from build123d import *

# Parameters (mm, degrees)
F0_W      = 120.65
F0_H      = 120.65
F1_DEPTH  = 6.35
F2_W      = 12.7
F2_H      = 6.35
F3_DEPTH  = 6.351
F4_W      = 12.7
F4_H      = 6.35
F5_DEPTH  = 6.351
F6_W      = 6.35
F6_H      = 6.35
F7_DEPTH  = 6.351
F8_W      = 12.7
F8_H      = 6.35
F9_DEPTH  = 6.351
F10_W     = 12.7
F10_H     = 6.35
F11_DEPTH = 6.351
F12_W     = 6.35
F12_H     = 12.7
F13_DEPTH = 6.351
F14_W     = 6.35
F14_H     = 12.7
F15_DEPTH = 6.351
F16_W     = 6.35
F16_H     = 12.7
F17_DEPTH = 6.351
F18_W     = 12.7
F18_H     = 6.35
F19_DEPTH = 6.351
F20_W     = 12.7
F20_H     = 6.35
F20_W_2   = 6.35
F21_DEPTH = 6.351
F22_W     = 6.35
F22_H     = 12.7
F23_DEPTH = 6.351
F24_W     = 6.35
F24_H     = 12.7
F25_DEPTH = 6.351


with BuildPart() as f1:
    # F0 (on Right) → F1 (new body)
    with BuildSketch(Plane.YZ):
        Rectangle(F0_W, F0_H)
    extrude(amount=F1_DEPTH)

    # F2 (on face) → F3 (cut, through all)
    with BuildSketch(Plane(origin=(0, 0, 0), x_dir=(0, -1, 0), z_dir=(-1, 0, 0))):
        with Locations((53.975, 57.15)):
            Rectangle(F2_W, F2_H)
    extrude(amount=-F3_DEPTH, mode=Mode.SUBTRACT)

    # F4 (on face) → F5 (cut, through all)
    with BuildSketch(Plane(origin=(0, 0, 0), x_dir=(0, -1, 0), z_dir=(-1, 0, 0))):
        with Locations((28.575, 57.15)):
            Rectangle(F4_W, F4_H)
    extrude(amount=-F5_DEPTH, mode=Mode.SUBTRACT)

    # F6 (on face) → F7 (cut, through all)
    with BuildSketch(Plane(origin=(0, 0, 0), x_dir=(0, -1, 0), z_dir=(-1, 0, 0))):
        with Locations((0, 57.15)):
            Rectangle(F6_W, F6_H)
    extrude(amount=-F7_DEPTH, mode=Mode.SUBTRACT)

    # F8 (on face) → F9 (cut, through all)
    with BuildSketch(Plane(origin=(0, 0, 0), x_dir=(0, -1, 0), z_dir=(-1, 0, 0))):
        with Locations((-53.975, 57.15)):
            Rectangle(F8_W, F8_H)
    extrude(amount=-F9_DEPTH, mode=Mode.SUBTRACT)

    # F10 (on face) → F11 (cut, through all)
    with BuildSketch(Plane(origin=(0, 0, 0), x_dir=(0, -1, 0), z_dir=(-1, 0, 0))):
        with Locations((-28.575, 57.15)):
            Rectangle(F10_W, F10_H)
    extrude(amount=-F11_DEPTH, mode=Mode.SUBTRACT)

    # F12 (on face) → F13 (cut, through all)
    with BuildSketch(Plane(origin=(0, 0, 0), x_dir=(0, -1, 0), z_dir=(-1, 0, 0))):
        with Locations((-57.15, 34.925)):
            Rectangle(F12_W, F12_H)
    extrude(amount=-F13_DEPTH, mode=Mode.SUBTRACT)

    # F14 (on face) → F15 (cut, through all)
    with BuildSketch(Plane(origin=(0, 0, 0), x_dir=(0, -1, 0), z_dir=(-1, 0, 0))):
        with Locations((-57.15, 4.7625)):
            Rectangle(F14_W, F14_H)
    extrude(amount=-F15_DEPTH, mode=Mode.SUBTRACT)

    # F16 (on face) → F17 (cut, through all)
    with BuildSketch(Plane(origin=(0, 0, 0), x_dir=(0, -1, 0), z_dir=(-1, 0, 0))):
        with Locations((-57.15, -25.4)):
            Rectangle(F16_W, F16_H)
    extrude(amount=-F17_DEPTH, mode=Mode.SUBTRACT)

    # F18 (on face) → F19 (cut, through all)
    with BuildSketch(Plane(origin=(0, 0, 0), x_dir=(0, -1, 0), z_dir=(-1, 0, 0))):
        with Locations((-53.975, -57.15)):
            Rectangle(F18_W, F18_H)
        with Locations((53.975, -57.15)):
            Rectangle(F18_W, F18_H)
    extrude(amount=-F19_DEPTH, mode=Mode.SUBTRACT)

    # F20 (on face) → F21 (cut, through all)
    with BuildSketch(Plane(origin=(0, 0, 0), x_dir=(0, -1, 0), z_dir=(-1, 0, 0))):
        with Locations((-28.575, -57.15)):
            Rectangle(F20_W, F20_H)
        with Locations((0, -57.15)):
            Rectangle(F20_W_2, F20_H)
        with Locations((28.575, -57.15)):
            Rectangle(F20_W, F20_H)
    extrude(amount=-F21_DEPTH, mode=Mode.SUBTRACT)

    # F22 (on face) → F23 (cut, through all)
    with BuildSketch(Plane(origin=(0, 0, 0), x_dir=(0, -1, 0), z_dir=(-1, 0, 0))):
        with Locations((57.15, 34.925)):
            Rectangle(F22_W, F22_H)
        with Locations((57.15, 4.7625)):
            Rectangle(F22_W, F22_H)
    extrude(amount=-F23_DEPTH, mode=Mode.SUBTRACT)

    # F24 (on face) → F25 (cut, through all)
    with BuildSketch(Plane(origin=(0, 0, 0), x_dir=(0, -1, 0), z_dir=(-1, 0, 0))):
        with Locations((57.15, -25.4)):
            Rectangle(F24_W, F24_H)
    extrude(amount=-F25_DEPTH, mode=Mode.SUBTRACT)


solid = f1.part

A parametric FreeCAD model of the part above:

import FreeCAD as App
import Part
import Sketcher
Q = App.Units.Quantity

doc = App.newDocument("Part")
body = doc.addObject("PartDesign::Body", "Body")

# Sketch on YZ plane
sketch1 = doc.addObject("Sketcher::SketchObject", "Sketch")
body.addObject(sketch1)
sketch1.AttachmentSupport = (doc.YZ_Plane, [""])
sketch1.MapMode = "FlatFace"
sketch1.addGeometry([
    Part.LineSegment(App.Vector(-60.325, 60.325, 0), App.Vector(-60.325, -60.325, 0)),
    Part.LineSegment(App.Vector(-60.325, -60.325, 0), App.Vector(60.325, -60.325, 0)),
    Part.LineSegment(App.Vector(60.325, -60.325, 0), App.Vector(60.325, 60.325, 0)),
    Part.LineSegment(App.Vector(60.325, 60.325, 0), App.Vector(-60.325, 60.325, 0)),
], False)
sketch1.addConstraint([
    Sketcher.Constraint("Coincident", 0, 2, 1, 1),
    Sketcher.Constraint("Coincident", 1, 2, 2, 1),
    Sketcher.Constraint("Coincident", 2, 2, 3, 1),
    Sketcher.Constraint("Coincident", 3, 2, 0, 1),
    Sketcher.Constraint("Vertical", 0),
    Sketcher.Constraint("Horizontal", 1),
    Sketcher.Constraint("Vertical", 2),
    Sketcher.Constraint("Horizontal", 3),
    Sketcher.Constraint("Symmetric", 0, 2, 2, 2, -1, 1),
    Sketcher.Constraint("Equal", 3, 0),
    Sketcher.Constraint("DistanceX", 1, 1, 1, 2, Q("4.75 in")),
])
pad1 = doc.addObject("PartDesign::Pad", "Pad")
body.addObject(pad1)
pad1.Profile = sketch1
pad1.Length = Q("0.25 in")

# Sketch on YZ plane
sketch2 = doc.addObject("Sketcher::SketchObject", "Sketch001")
body.addObject(sketch2)
sketch2.AttachmentSupport = (doc.YZ_Plane, [""])
sketch2.MapMode = "FlatFace"
sketch2.addGeometry([
    Part.LineSegment(App.Vector(-47.625, 60.325, 0), App.Vector(-47.625, 53.975, 0)),
    Part.LineSegment(App.Vector(-47.625, 53.975, 0), App.Vector(-60.325, 53.975, 0)),
    Part.LineSegment(App.Vector(-60.325, 53.975, 0), App.Vector(-60.325, 60.325, 0)),
    Part.LineSegment(App.Vector(-60.325, 60.325, 0), App.Vector(-47.625, 60.325, 0)),
], False)
sketch2.addConstraint([
    Sketcher.Constraint("Coincident", 0, 2, 1, 1),
    Sketcher.Constraint("Coincident", 1, 2, 2, 1),
    Sketcher.Constraint("Coincident", 2, 2, 3, 1),
    Sketcher.Constraint("Coincident", 3, 2, 0, 1),
    Sketcher.Constraint("Vertical", 0),
    Sketcher.Constraint("Horizontal", 1),
    Sketcher.Constraint("Vertical", 2),
    Sketcher.Constraint("Horizontal", 3),
    Sketcher.Constraint("DistanceX", 1, 2, 1, 1, Q("0.5 in")),
    Sketcher.Constraint("DistanceY", 0, 2, 0, 1, Q("0.25 in")),
    Sketcher.Constraint("DistanceX", 0, 2, -1, 1, Q("1.875 in")),
    Sketcher.Constraint("DistanceY", -1, 1, 0, 2, Q("2.125 in")),
])
pocket1 = doc.addObject("PartDesign::Pocket", "Pocket")
body.addObject(pocket1)
pocket1.Profile = sketch2
pocket1.Type = "ThroughAll"
pocket1.Reversed = True

# Sketch on YZ plane
sketch3 = doc.addObject("Sketcher::SketchObject", "Sketch002")
body.addObject(sketch3)
sketch3.AttachmentSupport = (doc.YZ_Plane, [""])
sketch3.MapMode = "FlatFace"
sketch3.addGeometry([
    Part.LineSegment(App.Vector(-22.225, 60.325, 0), App.Vector(-22.225, 53.975, 0)),
    Part.LineSegment(App.Vector(-22.225, 53.975, 0), App.Vector(-34.925, 53.975, 0)),
    Part.LineSegment(App.Vector(-34.925, 53.975, 0), App.Vector(-34.925, 60.325, 0)),
    Part.LineSegment(App.Vector(-34.925, 60.325, 0), App.Vector(-22.225, 60.325, 0)),
], False)
sketch3.addConstraint([
    Sketcher.Constraint("Coincident", 0, 2, 1, 1),
    Sketcher.Constraint("Coincident", 1, 2, 2, 1),
    Sketcher.Constraint("Coincident", 2, 2, 3, 1),
    Sketcher.Constraint("Coincident", 3, 2, 0, 1),
    Sketcher.Constraint("Vertical", 0),
    Sketcher.Constraint("Horizontal", 1),
    Sketcher.Constraint("Vertical", 2),
    Sketcher.Constraint("Horizontal", 3),
    Sketcher.Constraint("DistanceX", 1, 2, 1, 1, Q("0.5 in")),
    Sketcher.Constraint("DistanceY", 0, 2, 0, 1, Q("0.25 in")),
    Sketcher.Constraint("DistanceX", 0, 2, -1, 1, Q("0.875 in")),
    Sketcher.Constraint("DistanceY", -1, 1, 0, 2, Q("2.125 in")),
])
pocket2 = doc.addObject("PartDesign::Pocket", "Pocket001")
body.addObject(pocket2)
pocket2.Profile = sketch3
pocket2.Type = "ThroughAll"
pocket2.Reversed = True

# Sketch on YZ plane
sketch4 = doc.addObject("Sketcher::SketchObject", "Sketch003")
body.addObject(sketch4)
sketch4.AttachmentSupport = (doc.YZ_Plane, [""])
sketch4.MapMode = "FlatFace"
sketch4.addGeometry([
    Part.LineSegment(App.Vector(3.175, 60.325, 0), App.Vector(3.175, 53.975, 0)),
    Part.LineSegment(App.Vector(3.175, 53.975, 0), App.Vector(-3.175, 53.975, 0)),
    Part.LineSegment(App.Vector(-3.175, 53.975, 0), App.Vector(-3.175, 60.325, 0)),
    Part.LineSegment(App.Vector(-3.175, 60.325, 0), App.Vector(3.175, 60.325, 0)),
], False)
sketch4.addConstraint([
    Sketcher.Constraint("Coincident", 0, 2, 1, 1),
    Sketcher.Constraint("Coincident", 1, 2, 2, 1),
    Sketcher.Constraint("Coincident", 2, 2, 3, 1),
    Sketcher.Constraint("Coincident", 3, 2, 0, 1),
    Sketcher.Constraint("Vertical", 0),
    Sketcher.Constraint("Horizontal", 1),
    Sketcher.Constraint("Vertical", 2),
    Sketcher.Constraint("Horizontal", 3),
    Sketcher.Constraint("Equal", 3, 0),
    Sketcher.Constraint("DistanceX", 1, 2, 1, 1, Q("0.25 in")),
    Sketcher.Constraint("DistanceX", -1, 1, 0, 2, Q("0.125 in")),
    Sketcher.Constraint("DistanceY", -1, 1, 0, 2, Q("2.125 in")),
])
pocket3 = doc.addObject("PartDesign::Pocket", "Pocket002")
body.addObject(pocket3)
pocket3.Profile = sketch4
pocket3.Type = "ThroughAll"
pocket3.Reversed = True

# Sketch on YZ plane
sketch5 = doc.addObject("Sketcher::SketchObject", "Sketch004")
body.addObject(sketch5)
sketch5.AttachmentSupport = (doc.YZ_Plane, [""])
sketch5.MapMode = "FlatFace"
sketch5.addGeometry([
    Part.LineSegment(App.Vector(60.325, 60.325, 0), App.Vector(60.325, 53.975, 0)),
    Part.LineSegment(App.Vector(60.325, 53.975, 0), App.Vector(47.625, 53.975, 0)),
    Part.LineSegment(App.Vector(47.625, 53.975, 0), App.Vector(47.625, 60.325, 0)),
    Part.LineSegment(App.Vector(47.625, 60.325, 0), App.Vector(60.325, 60.325, 0)),
], False)
sketch5.addConstraint([
    Sketcher.Constraint("Coincident", 0, 2, 1, 1),
    Sketcher.Constraint("Coincident", 1, 2, 2, 1),
    Sketcher.Constraint("Coincident", 2, 2, 3, 1),
    Sketcher.Constraint("Coincident", 3, 2, 0, 1),
    Sketcher.Constraint("Vertical", 0),
    Sketcher.Constraint("Horizontal", 1),
    Sketcher.Constraint("Vertical", 2),
    Sketcher.Constraint("Horizontal", 3),
    Sketcher.Constraint("DistanceX", 1, 2, 1, 1, Q("0.5 in")),
    Sketcher.Constraint("DistanceY", 0, 2, 0, 1, Q("0.25 in")),
    Sketcher.Constraint("DistanceX", -1, 1, 0, 2, Q("2.375 in")),
    Sketcher.Constraint("DistanceY", -1, 1, 0, 2, Q("2.125 in")),
])
pocket4 = doc.addObject("PartDesign::Pocket", "Pocket003")
body.addObject(pocket4)
pocket4.Profile = sketch5
pocket4.Type = "ThroughAll"
pocket4.Reversed = True

# Sketch on YZ plane
sketch6 = doc.addObject("Sketcher::SketchObject", "Sketch005")
body.addObject(sketch6)
sketch6.AttachmentSupport = (doc.YZ_Plane, [""])
sketch6.MapMode = "FlatFace"
sketch6.addGeometry([
    Part.LineSegment(App.Vector(34.925, 60.325, 0), App.Vector(34.925, 53.975, 0)),
    Part.LineSegment(App.Vector(34.925, 53.975, 0), App.Vector(22.225, 53.975, 0)),
    Part.LineSegment(App.Vector(22.225, 53.975, 0), App.Vector(22.225, 60.325, 0)),
    Part.LineSegment(App.Vector(22.225, 60.325, 0), App.Vector(34.925, 60.325, 0)),
], False)
sketch6.addConstraint([
    Sketcher.Constraint("Coincident", 0, 2, 1, 1),
    Sketcher.Constraint("Coincident", 1, 2, 2, 1),
    Sketcher.Constraint("Coincident", 2, 2, 3, 1),
    Sketcher.Constraint("Coincident", 3, 2, 0, 1),
    Sketcher.Constraint("Vertical", 0),
    Sketcher.Constraint("Horizontal", 1),
    Sketcher.Constraint("Vertical", 2),
    Sketcher.Constraint("Horizontal", 3),
    Sketcher.Constraint("DistanceX", 1, 2, 1, 1, Q("0.5 in")),
    Sketcher.Constraint("DistanceY", 0, 2, 0, 1, Q("0.25 in")),
    Sketcher.Constraint("DistanceX", -1, 1, 0, 2, Q("1.375 in")),
    Sketcher.Constraint("DistanceY", -1, 1, 0, 2, Q("2.125 in")),
])
pocket5 = doc.addObject("PartDesign::Pocket", "Pocket004")
body.addObject(pocket5)
pocket5.Profile = sketch6
pocket5.Type = "ThroughAll"
pocket5.Reversed = True

# Sketch on YZ plane
sketch7 = doc.addObject("Sketcher::SketchObject", "Sketch006")
body.addObject(sketch7)
sketch7.AttachmentSupport = (doc.YZ_Plane, [""])
sketch7.MapMode = "FlatFace"
sketch7.addGeometry([
    Part.LineSegment(App.Vector(60.325, 41.275, 0), App.Vector(60.325, 28.575, 0)),
    Part.LineSegment(App.Vector(60.325, 28.575, 0), App.Vector(53.975, 28.575, 0)),
    Part.LineSegment(App.Vector(53.975, 28.575, 0), App.Vector(53.975, 41.275, 0)),
    Part.LineSegment(App.Vector(53.975, 41.275, 0), App.Vector(60.325, 41.275, 0)),
], False)
sketch7.addConstraint([
    Sketcher.Constraint("Coincident", 0, 2, 1, 1),
    Sketcher.Constraint("Coincident", 1, 2, 2, 1),
    Sketcher.Constraint("Coincident", 2, 2, 3, 1),
    Sketcher.Constraint("Coincident", 3, 2, 0, 1),
    Sketcher.Constraint("Vertical", 0),
    Sketcher.Constraint("Horizontal", 1),
    Sketcher.Constraint("Vertical", 2),
    Sketcher.Constraint("Horizontal", 3),
    Sketcher.Constraint("DistanceY", 0, 2, 0, 1, Q("0.5 in")),
    Sketcher.Constraint("DistanceX", 1, 2, 1, 1, Q("0.25 in")),
    Sketcher.Constraint("DistanceX", -1, 1, 0, 2, Q("2.375 in")),
    Sketcher.Constraint("DistanceY", -1, 1, 0, 2, Q("1.125 in")),
])
pocket6 = doc.addObject("PartDesign::Pocket", "Pocket005")
body.addObject(pocket6)
pocket6.Profile = sketch7
pocket6.Type = "ThroughAll"
pocket6.Reversed = True

# Sketch on YZ plane
sketch8 = doc.addObject("Sketcher::SketchObject", "Sketch007")
body.addObject(sketch8)
sketch8.AttachmentSupport = (doc.YZ_Plane, [""])
sketch8.MapMode = "FlatFace"
sketch8.addGeometry([
    Part.LineSegment(App.Vector(60.325, 11.1125, 0), App.Vector(60.325, -1.5875, 0)),
    Part.LineSegment(App.Vector(60.325, -1.5875, 0), App.Vector(53.975, -1.5875, 0)),
    Part.LineSegment(App.Vector(53.975, -1.5875, 0), App.Vector(53.975, 11.1125, 0)),
    Part.LineSegment(App.Vector(53.975, 11.1125, 0), App.Vector(60.325, 11.1125, 0)),
], False)
sketch8.addConstraint([
    Sketcher.Constraint("Coincident", 0, 2, 1, 1),
    Sketcher.Constraint("Coincident", 1, 2, 2, 1),
    Sketcher.Constraint("Coincident", 2, 2, 3, 1),
    Sketcher.Constraint("Coincident", 3, 2, 0, 1),
    Sketcher.Constraint("Vertical", 0),
    Sketcher.Constraint("Horizontal", 1),
    Sketcher.Constraint("Vertical", 2),
    Sketcher.Constraint("Horizontal", 3),
    Sketcher.Constraint("DistanceY", 0, 2, 0, 1, Q("0.5 in")),
    Sketcher.Constraint("DistanceX", 1, 2, 1, 1, Q("0.25 in")),
    Sketcher.Constraint("DistanceX", -1, 1, 0, 2, Q("2.375 in")),
    Sketcher.Constraint("DistanceY", 0, 2, -1, 1, Q("0.0625 in")),
])
pocket7 = doc.addObject("PartDesign::Pocket", "Pocket006")
body.addObject(pocket7)
pocket7.Profile = sketch8
pocket7.Type = "ThroughAll"
pocket7.Reversed = True

# Sketch on YZ plane
sketch9 = doc.addObject("Sketcher::SketchObject", "Sketch008")
body.addObject(sketch9)
sketch9.AttachmentSupport = (doc.YZ_Plane, [""])
sketch9.MapMode = "FlatFace"
sketch9.addGeometry([
    Part.LineSegment(App.Vector(60.325, -19.05, 0), App.Vector(60.325, -31.75, 0)),
    Part.LineSegment(App.Vector(60.325, -31.75, 0), App.Vector(53.975, -31.75, 0)),
    Part.LineSegment(App.Vector(53.975, -31.75, 0), App.Vector(53.975, -19.05, 0)),
    Part.LineSegment(App.Vector(53.975, -19.05, 0), App.Vector(60.325, -19.05, 0)),
], False)
sketch9.addConstraint([
    Sketcher.Constraint("Coincident", 0, 2, 1, 1),
    Sketcher.Constraint("Coincident", 1, 2, 2, 1),
    Sketcher.Constraint("Coincident", 2, 2, 3, 1),
    Sketcher.Constraint("Coincident", 3, 2, 0, 1),
    Sketcher.Constraint("Vertical", 0),
    Sketcher.Constraint("Horizontal", 1),
    Sketcher.Constraint("Vertical", 2),
    Sketcher.Constraint("Horizontal", 3),
    Sketcher.Constraint("DistanceY", 0, 2, 0, 1, Q("0.5 in")),
    Sketcher.Constraint("DistanceX", 1, 2, 1, 1, Q("0.25 in")),
    Sketcher.Constraint("DistanceY", 0, 2, -1, 1, Q("1.25 in")),
    Sketcher.Constraint("DistanceX", -1, 1, 0, 2, Q("2.375 in")),
])
pocket8 = doc.addObject("PartDesign::Pocket", "Pocket007")
body.addObject(pocket8)
pocket8.Profile = sketch9
pocket8.Type = "ThroughAll"
pocket8.Reversed = True

# Sketch on YZ plane
sketch10 = doc.addObject("Sketcher::SketchObject", "Sketch009")
body.addObject(sketch10)
sketch10.AttachmentSupport = (doc.YZ_Plane, [""])
sketch10.MapMode = "FlatFace"
sketch10.addGeometry([
    Part.LineSegment(App.Vector(60.325, -53.975, 0), App.Vector(60.325, -60.325, 0)),  # 0
    Part.LineSegment(App.Vector(60.325, -60.325, 0), App.Vector(47.625, -60.325, 0)),  # 1
    Part.LineSegment(App.Vector(47.625, -60.325, 0), App.Vector(47.625, -53.975, 0)),  # 2
    Part.LineSegment(App.Vector(47.625, -53.975, 0), App.Vector(60.325, -53.975, 0)),  # 3
    Part.LineSegment(App.Vector(-47.625, -53.975, 0), App.Vector(-47.625, -60.325, 0)),  # 4
    Part.LineSegment(App.Vector(-47.625, -60.325, 0), App.Vector(-60.325, -60.325, 0)),  # 5
    Part.LineSegment(App.Vector(-60.325, -60.325, 0), App.Vector(-60.325, -53.975, 0)),  # 6
    Part.LineSegment(App.Vector(-60.325, -53.975, 0), App.Vector(-47.625, -53.975, 0)),  # 7
], False)
sketch10.addConstraint([
    Sketcher.Constraint("Coincident", 0, 2, 1, 1),
    Sketcher.Constraint("Coincident", 1, 2, 2, 1),
    Sketcher.Constraint("Coincident", 2, 2, 3, 1),
    Sketcher.Constraint("Coincident", 3, 2, 0, 1),
    Sketcher.Constraint("Coincident", 4, 2, 5, 1),
    Sketcher.Constraint("Coincident", 5, 2, 6, 1),
    Sketcher.Constraint("Coincident", 6, 2, 7, 1),
    Sketcher.Constraint("Coincident", 7, 2, 4, 1),
    Sketcher.Constraint("Vertical", 0),
    Sketcher.Constraint("Horizontal", 1),
    Sketcher.Constraint("Vertical", 2),
    Sketcher.Constraint("Horizontal", 3),
    Sketcher.Constraint("Vertical", 4),
    Sketcher.Constraint("Horizontal", 5),
    Sketcher.Constraint("Vertical", 6),
    Sketcher.Constraint("Horizontal", 7),
    Sketcher.Constraint("Symmetric", 1, 2, 4, 2, -2),
    Sketcher.Constraint("Symmetric", 3, 2, 6, 2, -2),
    Sketcher.Constraint("DistanceX", 1, 2, 1, 1, Q("0.5 in")),
    Sketcher.Constraint("DistanceY", 0, 2, 0, 1, Q("0.25 in")),
    Sketcher.Constraint("DistanceX", 4, 2, 1, 2, Q("3.75 in")),
    Sketcher.Constraint("DistanceY", 0, 2, -1, 1, Q("2.375 in")),
])
pocket9 = doc.addObject("PartDesign::Pocket", "Pocket008")
body.addObject(pocket9)
pocket9.Profile = sketch10
pocket9.Type = "ThroughAll"
pocket9.Reversed = True

# Sketch on YZ plane
sketch11 = doc.addObject("Sketcher::SketchObject", "Sketch010")
body.addObject(sketch11)
sketch11.AttachmentSupport = (doc.YZ_Plane, [""])
sketch11.MapMode = "FlatFace"
sketch11.addGeometry([
    Part.LineSegment(App.Vector(34.925, -53.975, 0), App.Vector(34.925, -60.325, 0)),  # 0
    Part.LineSegment(App.Vector(34.925, -60.325, 0), App.Vector(22.225, -60.325, 0)),  # 1
    Part.LineSegment(App.Vector(22.225, -60.325, 0), App.Vector(22.225, -53.975, 0)),  # 2
    Part.LineSegment(App.Vector(22.225, -53.975, 0), App.Vector(34.925, -53.975, 0)),  # 3
    Part.LineSegment(App.Vector(3.175, -53.975, 0), App.Vector(3.175, -60.325, 0)),  # 4
    Part.LineSegment(App.Vector(3.175, -60.325, 0), App.Vector(-3.175, -60.325, 0)),  # 5
    Part.LineSegment(App.Vector(-3.175, -60.325, 0), App.Vector(-3.175, -53.975, 0)),  # 6
    Part.LineSegment(App.Vector(-3.175, -53.975, 0), App.Vector(3.175, -53.975, 0)),  # 7
    Part.LineSegment(App.Vector(-22.225, -53.975, 0), App.Vector(-22.225, -60.325, 0)),  # 8
    Part.LineSegment(App.Vector(-22.225, -60.325, 0), App.Vector(-34.925, -60.325, 0)),  # 9
    Part.LineSegment(App.Vector(-34.925, -60.325, 0), App.Vector(-34.925, -53.975, 0)),  # 10
    Part.LineSegment(App.Vector(-34.925, -53.975, 0), App.Vector(-22.225, -53.975, 0)),  # 11
], False)
sketch11.addConstraint([
    Sketcher.Constraint("Coincident", 0, 2, 1, 1),
    Sketcher.Constraint("Coincident", 1, 2, 2, 1),
    Sketcher.Constraint("Coincident", 2, 2, 3, 1),
    Sketcher.Constraint("Coincident", 3, 2, 0, 1),
    Sketcher.Constraint("Coincident", 4, 2, 5, 1),
    Sketcher.Constraint("Coincident", 5, 2, 6, 1),
    Sketcher.Constraint("Coincident", 6, 2, 7, 1),
    Sketcher.Constraint("Coincident", 7, 2, 4, 1),
    Sketcher.Constraint("Coincident", 8, 2, 9, 1),
    Sketcher.Constraint("Coincident", 9, 2, 10, 1),
    Sketcher.Constraint("Coincident", 10, 2, 11, 1),
    Sketcher.Constraint("Coincident", 11, 2, 8, 1),
    Sketcher.Constraint("Vertical", 0),
    Sketcher.Constraint("Horizontal", 1),
    Sketcher.Constraint("Vertical", 2),
    Sketcher.Constraint("Horizontal", 3),
    Sketcher.Constraint("Vertical", 4),
    Sketcher.Constraint("Horizontal", 5),
    Sketcher.Constraint("Vertical", 6),
    Sketcher.Constraint("Horizontal", 7),
    Sketcher.Constraint("Vertical", 8),
    Sketcher.Constraint("Horizontal", 9),
    Sketcher.Constraint("Vertical", 10),
    Sketcher.Constraint("Horizontal", 11),
    Sketcher.Constraint("Symmetric", 1, 2, 8, 2, -2),
    Sketcher.Constraint("Symmetric", 3, 2, 10, 2, -2),
    Sketcher.Constraint("Horizontal", 1, 2, 4, 2),
    Sketcher.Constraint("Horizontal", 3, 2, 6, 2),
    Sketcher.Constraint("Equal", 7, 0),
    Sketcher.Constraint("DistanceX", 1, 2, 1, 1, Q("0.5 in")),
    Sketcher.Constraint("DistanceX", 5, 2, 1, 2, Q("1 in")),
    Sketcher.Constraint("DistanceX", 8, 2, 4, 2, Q("1 in")),
    Sketcher.Constraint("DistanceX", 5, 2, 5, 1, Q("0.25 in")),
    Sketcher.Constraint("DistanceY", 0, 2, -1, 1, Q("2.375 in")),
])
pocket10 = doc.addObject("PartDesign::Pocket", "Pocket009")
body.addObject(pocket10)
pocket10.Profile = sketch11
pocket10.Type = "ThroughAll"
pocket10.Reversed = True

# Sketch on YZ plane
sketch12 = doc.addObject("Sketcher::SketchObject", "Sketch011")
body.addObject(sketch12)
sketch12.AttachmentSupport = (doc.YZ_Plane, [""])
sketch12.MapMode = "FlatFace"
sketch12.addGeometry([
    Part.LineSegment(App.Vector(-53.975, 41.275, 0), App.Vector(-53.975, 28.575, 0)),  # 0
    Part.LineSegment(App.Vector(-53.975, 28.575, 0), App.Vector(-60.325, 28.575, 0)),  # 1
    Part.LineSegment(App.Vector(-60.325, 28.575, 0), App.Vector(-60.325, 41.275, 0)),  # 2
    Part.LineSegment(App.Vector(-60.325, 41.275, 0), App.Vector(-53.975, 41.275, 0)),  # 3
    Part.LineSegment(App.Vector(-53.975, 11.1125, 0), App.Vector(-53.975, -1.5875, 0)),  # 4
    Part.LineSegment(App.Vector(-53.975, -1.5875, 0), App.Vector(-60.325, -1.5875, 0)),  # 5
    Part.LineSegment(App.Vector(-60.325, -1.5875, 0), App.Vector(-60.325, 11.1125, 0)),  # 6
    Part.LineSegment(App.Vector(-60.325, 11.1125, 0), App.Vector(-53.975, 11.1125, 0)),  # 7
], False)
sketch12.addConstraint([
    Sketcher.Constraint("Coincident", 0, 2, 1, 1),
    Sketcher.Constraint("Coincident", 1, 2, 2, 1),
    Sketcher.Constraint("Coincident", 2, 2, 3, 1),
    Sketcher.Constraint("Coincident", 3, 2, 0, 1),
    Sketcher.Constraint("Coincident", 4, 2, 5, 1),
    Sketcher.Constraint("Coincident", 5, 2, 6, 1),
    Sketcher.Constraint("Coincident", 6, 2, 7, 1),
    Sketcher.Constraint("Coincident", 7, 2, 4, 1),
    Sketcher.Constraint("Vertical", 0),
    Sketcher.Constraint("Horizontal", 1),
    Sketcher.Constraint("Vertical", 2),
    Sketcher.Constraint("Horizontal", 3),
    Sketcher.Constraint("Vertical", 4),
    Sketcher.Constraint("Horizontal", 5),
    Sketcher.Constraint("Vertical", 6),
    Sketcher.Constraint("Horizontal", 7),
    Sketcher.Constraint("Vertical", 3, 2, 4, 2),
    Sketcher.Constraint("Vertical", 2, 2, 5, 2),
    Sketcher.Constraint("Equal", 2, 4),
    Sketcher.Constraint("DistanceY", 0, 2, 0, 1, Q("0.5 in")),
    Sketcher.Constraint("DistanceX", 1, 2, 1, 1, Q("0.25 in")),
    Sketcher.Constraint("DistanceX", 0, 2, -1, 1, Q("2.125 in")),
    Sketcher.Constraint("DistanceY", -1, 1, 0, 2, Q("1.125 in")),
    Sketcher.Constraint("DistanceY", 4, 2, -1, 1, Q("0.0625 in")),
])
pocket11 = doc.addObject("PartDesign::Pocket", "Pocket010")
body.addObject(pocket11)
pocket11.Profile = sketch12
pocket11.Type = "ThroughAll"
pocket11.Reversed = True

# Sketch on YZ plane
sketch13 = doc.addObject("Sketcher::SketchObject", "Sketch012")
body.addObject(sketch13)
sketch13.AttachmentSupport = (doc.YZ_Plane, [""])
sketch13.MapMode = "FlatFace"
sketch13.addGeometry([
    Part.LineSegment(App.Vector(-53.975, -19.05, 0), App.Vector(-53.975, -31.75, 0)),
    Part.LineSegment(App.Vector(-53.975, -31.75, 0), App.Vector(-60.325, -31.75, 0)),
    Part.LineSegment(App.Vector(-60.325, -31.75, 0), App.Vector(-60.325, -19.05, 0)),
    Part.LineSegment(App.Vector(-60.325, -19.05, 0), App.Vector(-53.975, -19.05, 0)),
], False)
sketch13.addConstraint([
    Sketcher.Constraint("Coincident", 0, 2, 1, 1),
    Sketcher.Constraint("Coincident", 1, 2, 2, 1),
    Sketcher.Constraint("Coincident", 2, 2, 3, 1),
    Sketcher.Constraint("Coincident", 3, 2, 0, 1),
    Sketcher.Constraint("Vertical", 0),
    Sketcher.Constraint("Horizontal", 1),
    Sketcher.Constraint("Vertical", 2),
    Sketcher.Constraint("Horizontal", 3),
    Sketcher.Constraint("DistanceY", 0, 2, 0, 1, Q("0.5 in")),
    Sketcher.Constraint("DistanceX", 1, 2, 1, 1, Q("0.25 in")),
    Sketcher.Constraint("DistanceY", 0, 2, -1, 1, Q("1.25 in")),
    Sketcher.Constraint("DistanceX", 0, 2, -1, 1, Q("2.125 in")),
])
pocket12 = doc.addObject("PartDesign::Pocket", "Pocket011")
body.addObject(pocket12)
pocket12.Profile = sketch13
pocket12.Type = "ThroughAll"
pocket12.Reversed = True

doc.recompute()
